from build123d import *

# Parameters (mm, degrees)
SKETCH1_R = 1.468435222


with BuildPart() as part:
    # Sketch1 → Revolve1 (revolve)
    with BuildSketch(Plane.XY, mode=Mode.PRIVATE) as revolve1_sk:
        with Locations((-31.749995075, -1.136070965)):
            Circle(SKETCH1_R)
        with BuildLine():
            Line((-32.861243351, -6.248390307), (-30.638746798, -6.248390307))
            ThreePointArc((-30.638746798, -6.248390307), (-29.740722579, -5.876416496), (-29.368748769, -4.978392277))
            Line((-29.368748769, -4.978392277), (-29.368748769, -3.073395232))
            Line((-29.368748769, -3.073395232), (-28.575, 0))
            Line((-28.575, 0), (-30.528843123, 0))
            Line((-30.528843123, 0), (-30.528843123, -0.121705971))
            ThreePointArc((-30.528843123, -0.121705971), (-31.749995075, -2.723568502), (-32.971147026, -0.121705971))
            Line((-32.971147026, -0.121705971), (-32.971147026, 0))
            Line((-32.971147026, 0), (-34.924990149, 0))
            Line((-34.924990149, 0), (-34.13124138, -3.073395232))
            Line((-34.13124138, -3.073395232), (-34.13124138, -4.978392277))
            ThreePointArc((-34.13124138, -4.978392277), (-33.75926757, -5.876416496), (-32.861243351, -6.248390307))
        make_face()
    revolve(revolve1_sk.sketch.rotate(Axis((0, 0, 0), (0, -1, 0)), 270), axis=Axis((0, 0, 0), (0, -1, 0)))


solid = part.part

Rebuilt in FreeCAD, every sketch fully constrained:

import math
import FreeCAD as App
import Part
import Sketcher
from FreeCAD import Vector
Q = App.Units.Quantity

doc = App.newDocument("Part")
body = doc.addObject("PartDesign::Body", "Body")
body.AllowCompound = True

# Sketch on XY plane
sketch1 = doc.addObject("Sketcher::SketchObject", "Sketch")
body.addObject(sketch1)
sketch1.AttachmentSupport = (doc.XY_Plane, [""])
sketch1.MapMode = "FlatFace"
sketch1.addGeometry(Part.Circle(Vector(-31.749995, -1.136071, 0), Vector(0, 0, 1), 1.468435), False)
sketch1.addGeometry(Part.LineSegment(Vector(-32.861243, -6.24839, 0), Vector(-30.638747, -6.24839, 0)), False)
sketch1.addGeometry(Part.ArcOfCircle(Part.Circle(Vector(-30.638747, -4.978392, 0), Vector(0, 0, 1), 1.269998), math.radians(-90), math.radians(0)), False)
sketch1.addGeometry(Part.LineSegment(Vector(-29.368749, -4.978392, 0), Vector(-29.368749, -3.073395, 0)), False)
sketch1.addGeometry(Part.LineSegment(Vector(-29.368749, -3.073395, 0), Vector(-28.575, 0, 0)), False)
sketch1.addGeometry(Part.LineSegment(Vector(-28.575, 0, 0), Vector(-30.528843, 0, 0)), False)
sketch1.addGeometry(Part.LineSegment(Vector(-30.528843, 0, 0), Vector(-30.528843, -0.121706, 0)), False)
sketch1.addGeometry(Part.ArcOfCircle(Part.Circle(Vector(-31.749995, -1.136071, 0), Vector(0, 0, 1), 1.587498), math.radians(140.284863), math.radians(399.715137)), False)
sketch1.addGeometry(Part.LineSegment(Vector(-32.971147, -0.121706, 0), Vector(-32.971147, 0, 0)), False)
sketch1.addGeometry(Part.LineSegment(Vector(-32.971147, 0, 0), Vector(-34.92499, 0, 0)), False)
sketch1.addGeometry(Part.LineSegment(Vector(-34.92499, 0, 0), Vector(-34.131241, -3.073395, 0)), False)
sketch1.addGeometry(Part.LineSegment(Vector(-34.131241, -3.073395, 0), Vector(-34.131241, -4.978392, 0)), False)
sketch1.addGeometry(Part.ArcOfCircle(Part.Circle(Vector(-32.861243, -4.978392, 0), Vector(0, 0, 1), 1.269998), math.radians(180), math.radians(270)), False)
sketch1.addConstraint(Sketcher.Constraint("Tangent", 1, 2, 2, 1))
sketch1.addConstraint(Sketcher.Constraint("Tangent", 2, 2, 3, 1))
sketch1.addConstraint(Sketcher.Constraint("Coincident", 3, 2, 4, 1))
sketch1.addConstraint(Sketcher.Constraint("Coincident", 4, 2, 5, 1))
sketch1.addConstraint(Sketcher.Constraint("Coincident", 5, 2, 6, 1))
sketch1.addConstraint(Sketcher.Constraint("Coincident", 6, 2, 7, 2))
sketch1.addConstraint(Sketcher.Constraint("Coincident", 7, 1, 8, 1))
sketch1.addConstraint(Sketcher.Constraint("Coincident", 8, 2, 9, 1))
sketch1.addConstraint(Sketcher.Constraint("Coincident", 9, 2, 10, 1))
sketch1.addConstraint(Sketcher.Constraint("Coincident", 10, 2, 11, 1))
sketch1.addConstraint(Sketcher.Constraint("Tangent", 11, 2, 12, 1))
sketch1.addConstraint(Sketcher.Constraint("Tangent", 12, 2, 1, 1))
sketch1.addConstraint(Sketcher.Constraint("Horizontal", 1))
sketch1.addConstraint(Sketcher.Constraint("Vertical", 3))
sketch1.addConstraint(Sketcher.Constraint("Horizontal", 5))
sketch1.addConstraint(Sketcher.Constraint("Vertical", 6))
sketch1.addConstraint(Sketcher.Constraint("Vertical", 8))
sketch1.addConstraint(Sketcher.Constraint("Horizontal", 9))
sketch1.addConstraint(Sketcher.Constraint("Vertical", 11))
sketch1.addConstraint(Sketcher.Constraint("Coincident", 7, 3, 0, 3))
sketch1.addConstraint(Sketcher.Constraint("Equal", 2, 12))
sketch1.addConstraint(Sketcher.Constraint("PointOnObject", 4, 2, -1))
sketch1.addConstraint(Sketcher.Constraint("PointOnObject", 8, 2, -1))
sketch1.addConstraint(Sketcher.Constraint("Horizontal", 6, 2, 7, 1))
sketch1.addConstraint(Sketcher.Constraint("Horizontal", 3, 2, 10, 2))
sketch1.addConstraint(Sketcher.Constraint("Equal", 5, 9))
sketch1.addConstraint(Sketcher.Constraint("Equal", 4, 10))
sketch1.addConstraint(Sketcher.Constraint("Radius", 2, Q("0.0499999 in")))
sketch1.addConstraint(Sketcher.Constraint("Radius", 7, Q("0.0624999 in")))
sketch1.addConstraint(Sketcher.Constraint("DistanceY", 3, 1, 3, 2, Q("0.0749999 in")))
sketch1.addConstraint(Sketcher.Constraint("DistanceX", 0, 3, -1, 1, Q("1.2499998 in")))
sketch1.addConstraint(Sketcher.Constraint("Diameter", 0, Q("2.93687 mm")))
sketch1.addConstraint(Sketcher.Constraint("DistanceX", 1, 1, 1, 2, Q("0.0874999 in")))
sketch1.addConstraint(Sketcher.Constraint("DistanceY", 3, 2, -1, 1, Q("0.1209998 in")))
sketch1.addConstraint(Sketcher.Constraint("DistanceX", 4, 2, -1, 1, Q("1.125 in")))
sketch1.addConstraint(Sketcher.Constraint("DistanceX", 5, 2, 5, 1, Q("1.953843 mm")))
sketch1.addConstraint(Sketcher.Constraint("DistanceY", 6, 2, 6, 1, Q("0.121706 mm")))
revolution = doc.addObject("PartDesign::Revolution", "Revolution")
body.addObject(revolution)
revolution.Profile = sketch1
revolution.ReferenceAxis = (sketch1, ["V_Axis"])
revolution.Angle = 360

doc.recompute()
